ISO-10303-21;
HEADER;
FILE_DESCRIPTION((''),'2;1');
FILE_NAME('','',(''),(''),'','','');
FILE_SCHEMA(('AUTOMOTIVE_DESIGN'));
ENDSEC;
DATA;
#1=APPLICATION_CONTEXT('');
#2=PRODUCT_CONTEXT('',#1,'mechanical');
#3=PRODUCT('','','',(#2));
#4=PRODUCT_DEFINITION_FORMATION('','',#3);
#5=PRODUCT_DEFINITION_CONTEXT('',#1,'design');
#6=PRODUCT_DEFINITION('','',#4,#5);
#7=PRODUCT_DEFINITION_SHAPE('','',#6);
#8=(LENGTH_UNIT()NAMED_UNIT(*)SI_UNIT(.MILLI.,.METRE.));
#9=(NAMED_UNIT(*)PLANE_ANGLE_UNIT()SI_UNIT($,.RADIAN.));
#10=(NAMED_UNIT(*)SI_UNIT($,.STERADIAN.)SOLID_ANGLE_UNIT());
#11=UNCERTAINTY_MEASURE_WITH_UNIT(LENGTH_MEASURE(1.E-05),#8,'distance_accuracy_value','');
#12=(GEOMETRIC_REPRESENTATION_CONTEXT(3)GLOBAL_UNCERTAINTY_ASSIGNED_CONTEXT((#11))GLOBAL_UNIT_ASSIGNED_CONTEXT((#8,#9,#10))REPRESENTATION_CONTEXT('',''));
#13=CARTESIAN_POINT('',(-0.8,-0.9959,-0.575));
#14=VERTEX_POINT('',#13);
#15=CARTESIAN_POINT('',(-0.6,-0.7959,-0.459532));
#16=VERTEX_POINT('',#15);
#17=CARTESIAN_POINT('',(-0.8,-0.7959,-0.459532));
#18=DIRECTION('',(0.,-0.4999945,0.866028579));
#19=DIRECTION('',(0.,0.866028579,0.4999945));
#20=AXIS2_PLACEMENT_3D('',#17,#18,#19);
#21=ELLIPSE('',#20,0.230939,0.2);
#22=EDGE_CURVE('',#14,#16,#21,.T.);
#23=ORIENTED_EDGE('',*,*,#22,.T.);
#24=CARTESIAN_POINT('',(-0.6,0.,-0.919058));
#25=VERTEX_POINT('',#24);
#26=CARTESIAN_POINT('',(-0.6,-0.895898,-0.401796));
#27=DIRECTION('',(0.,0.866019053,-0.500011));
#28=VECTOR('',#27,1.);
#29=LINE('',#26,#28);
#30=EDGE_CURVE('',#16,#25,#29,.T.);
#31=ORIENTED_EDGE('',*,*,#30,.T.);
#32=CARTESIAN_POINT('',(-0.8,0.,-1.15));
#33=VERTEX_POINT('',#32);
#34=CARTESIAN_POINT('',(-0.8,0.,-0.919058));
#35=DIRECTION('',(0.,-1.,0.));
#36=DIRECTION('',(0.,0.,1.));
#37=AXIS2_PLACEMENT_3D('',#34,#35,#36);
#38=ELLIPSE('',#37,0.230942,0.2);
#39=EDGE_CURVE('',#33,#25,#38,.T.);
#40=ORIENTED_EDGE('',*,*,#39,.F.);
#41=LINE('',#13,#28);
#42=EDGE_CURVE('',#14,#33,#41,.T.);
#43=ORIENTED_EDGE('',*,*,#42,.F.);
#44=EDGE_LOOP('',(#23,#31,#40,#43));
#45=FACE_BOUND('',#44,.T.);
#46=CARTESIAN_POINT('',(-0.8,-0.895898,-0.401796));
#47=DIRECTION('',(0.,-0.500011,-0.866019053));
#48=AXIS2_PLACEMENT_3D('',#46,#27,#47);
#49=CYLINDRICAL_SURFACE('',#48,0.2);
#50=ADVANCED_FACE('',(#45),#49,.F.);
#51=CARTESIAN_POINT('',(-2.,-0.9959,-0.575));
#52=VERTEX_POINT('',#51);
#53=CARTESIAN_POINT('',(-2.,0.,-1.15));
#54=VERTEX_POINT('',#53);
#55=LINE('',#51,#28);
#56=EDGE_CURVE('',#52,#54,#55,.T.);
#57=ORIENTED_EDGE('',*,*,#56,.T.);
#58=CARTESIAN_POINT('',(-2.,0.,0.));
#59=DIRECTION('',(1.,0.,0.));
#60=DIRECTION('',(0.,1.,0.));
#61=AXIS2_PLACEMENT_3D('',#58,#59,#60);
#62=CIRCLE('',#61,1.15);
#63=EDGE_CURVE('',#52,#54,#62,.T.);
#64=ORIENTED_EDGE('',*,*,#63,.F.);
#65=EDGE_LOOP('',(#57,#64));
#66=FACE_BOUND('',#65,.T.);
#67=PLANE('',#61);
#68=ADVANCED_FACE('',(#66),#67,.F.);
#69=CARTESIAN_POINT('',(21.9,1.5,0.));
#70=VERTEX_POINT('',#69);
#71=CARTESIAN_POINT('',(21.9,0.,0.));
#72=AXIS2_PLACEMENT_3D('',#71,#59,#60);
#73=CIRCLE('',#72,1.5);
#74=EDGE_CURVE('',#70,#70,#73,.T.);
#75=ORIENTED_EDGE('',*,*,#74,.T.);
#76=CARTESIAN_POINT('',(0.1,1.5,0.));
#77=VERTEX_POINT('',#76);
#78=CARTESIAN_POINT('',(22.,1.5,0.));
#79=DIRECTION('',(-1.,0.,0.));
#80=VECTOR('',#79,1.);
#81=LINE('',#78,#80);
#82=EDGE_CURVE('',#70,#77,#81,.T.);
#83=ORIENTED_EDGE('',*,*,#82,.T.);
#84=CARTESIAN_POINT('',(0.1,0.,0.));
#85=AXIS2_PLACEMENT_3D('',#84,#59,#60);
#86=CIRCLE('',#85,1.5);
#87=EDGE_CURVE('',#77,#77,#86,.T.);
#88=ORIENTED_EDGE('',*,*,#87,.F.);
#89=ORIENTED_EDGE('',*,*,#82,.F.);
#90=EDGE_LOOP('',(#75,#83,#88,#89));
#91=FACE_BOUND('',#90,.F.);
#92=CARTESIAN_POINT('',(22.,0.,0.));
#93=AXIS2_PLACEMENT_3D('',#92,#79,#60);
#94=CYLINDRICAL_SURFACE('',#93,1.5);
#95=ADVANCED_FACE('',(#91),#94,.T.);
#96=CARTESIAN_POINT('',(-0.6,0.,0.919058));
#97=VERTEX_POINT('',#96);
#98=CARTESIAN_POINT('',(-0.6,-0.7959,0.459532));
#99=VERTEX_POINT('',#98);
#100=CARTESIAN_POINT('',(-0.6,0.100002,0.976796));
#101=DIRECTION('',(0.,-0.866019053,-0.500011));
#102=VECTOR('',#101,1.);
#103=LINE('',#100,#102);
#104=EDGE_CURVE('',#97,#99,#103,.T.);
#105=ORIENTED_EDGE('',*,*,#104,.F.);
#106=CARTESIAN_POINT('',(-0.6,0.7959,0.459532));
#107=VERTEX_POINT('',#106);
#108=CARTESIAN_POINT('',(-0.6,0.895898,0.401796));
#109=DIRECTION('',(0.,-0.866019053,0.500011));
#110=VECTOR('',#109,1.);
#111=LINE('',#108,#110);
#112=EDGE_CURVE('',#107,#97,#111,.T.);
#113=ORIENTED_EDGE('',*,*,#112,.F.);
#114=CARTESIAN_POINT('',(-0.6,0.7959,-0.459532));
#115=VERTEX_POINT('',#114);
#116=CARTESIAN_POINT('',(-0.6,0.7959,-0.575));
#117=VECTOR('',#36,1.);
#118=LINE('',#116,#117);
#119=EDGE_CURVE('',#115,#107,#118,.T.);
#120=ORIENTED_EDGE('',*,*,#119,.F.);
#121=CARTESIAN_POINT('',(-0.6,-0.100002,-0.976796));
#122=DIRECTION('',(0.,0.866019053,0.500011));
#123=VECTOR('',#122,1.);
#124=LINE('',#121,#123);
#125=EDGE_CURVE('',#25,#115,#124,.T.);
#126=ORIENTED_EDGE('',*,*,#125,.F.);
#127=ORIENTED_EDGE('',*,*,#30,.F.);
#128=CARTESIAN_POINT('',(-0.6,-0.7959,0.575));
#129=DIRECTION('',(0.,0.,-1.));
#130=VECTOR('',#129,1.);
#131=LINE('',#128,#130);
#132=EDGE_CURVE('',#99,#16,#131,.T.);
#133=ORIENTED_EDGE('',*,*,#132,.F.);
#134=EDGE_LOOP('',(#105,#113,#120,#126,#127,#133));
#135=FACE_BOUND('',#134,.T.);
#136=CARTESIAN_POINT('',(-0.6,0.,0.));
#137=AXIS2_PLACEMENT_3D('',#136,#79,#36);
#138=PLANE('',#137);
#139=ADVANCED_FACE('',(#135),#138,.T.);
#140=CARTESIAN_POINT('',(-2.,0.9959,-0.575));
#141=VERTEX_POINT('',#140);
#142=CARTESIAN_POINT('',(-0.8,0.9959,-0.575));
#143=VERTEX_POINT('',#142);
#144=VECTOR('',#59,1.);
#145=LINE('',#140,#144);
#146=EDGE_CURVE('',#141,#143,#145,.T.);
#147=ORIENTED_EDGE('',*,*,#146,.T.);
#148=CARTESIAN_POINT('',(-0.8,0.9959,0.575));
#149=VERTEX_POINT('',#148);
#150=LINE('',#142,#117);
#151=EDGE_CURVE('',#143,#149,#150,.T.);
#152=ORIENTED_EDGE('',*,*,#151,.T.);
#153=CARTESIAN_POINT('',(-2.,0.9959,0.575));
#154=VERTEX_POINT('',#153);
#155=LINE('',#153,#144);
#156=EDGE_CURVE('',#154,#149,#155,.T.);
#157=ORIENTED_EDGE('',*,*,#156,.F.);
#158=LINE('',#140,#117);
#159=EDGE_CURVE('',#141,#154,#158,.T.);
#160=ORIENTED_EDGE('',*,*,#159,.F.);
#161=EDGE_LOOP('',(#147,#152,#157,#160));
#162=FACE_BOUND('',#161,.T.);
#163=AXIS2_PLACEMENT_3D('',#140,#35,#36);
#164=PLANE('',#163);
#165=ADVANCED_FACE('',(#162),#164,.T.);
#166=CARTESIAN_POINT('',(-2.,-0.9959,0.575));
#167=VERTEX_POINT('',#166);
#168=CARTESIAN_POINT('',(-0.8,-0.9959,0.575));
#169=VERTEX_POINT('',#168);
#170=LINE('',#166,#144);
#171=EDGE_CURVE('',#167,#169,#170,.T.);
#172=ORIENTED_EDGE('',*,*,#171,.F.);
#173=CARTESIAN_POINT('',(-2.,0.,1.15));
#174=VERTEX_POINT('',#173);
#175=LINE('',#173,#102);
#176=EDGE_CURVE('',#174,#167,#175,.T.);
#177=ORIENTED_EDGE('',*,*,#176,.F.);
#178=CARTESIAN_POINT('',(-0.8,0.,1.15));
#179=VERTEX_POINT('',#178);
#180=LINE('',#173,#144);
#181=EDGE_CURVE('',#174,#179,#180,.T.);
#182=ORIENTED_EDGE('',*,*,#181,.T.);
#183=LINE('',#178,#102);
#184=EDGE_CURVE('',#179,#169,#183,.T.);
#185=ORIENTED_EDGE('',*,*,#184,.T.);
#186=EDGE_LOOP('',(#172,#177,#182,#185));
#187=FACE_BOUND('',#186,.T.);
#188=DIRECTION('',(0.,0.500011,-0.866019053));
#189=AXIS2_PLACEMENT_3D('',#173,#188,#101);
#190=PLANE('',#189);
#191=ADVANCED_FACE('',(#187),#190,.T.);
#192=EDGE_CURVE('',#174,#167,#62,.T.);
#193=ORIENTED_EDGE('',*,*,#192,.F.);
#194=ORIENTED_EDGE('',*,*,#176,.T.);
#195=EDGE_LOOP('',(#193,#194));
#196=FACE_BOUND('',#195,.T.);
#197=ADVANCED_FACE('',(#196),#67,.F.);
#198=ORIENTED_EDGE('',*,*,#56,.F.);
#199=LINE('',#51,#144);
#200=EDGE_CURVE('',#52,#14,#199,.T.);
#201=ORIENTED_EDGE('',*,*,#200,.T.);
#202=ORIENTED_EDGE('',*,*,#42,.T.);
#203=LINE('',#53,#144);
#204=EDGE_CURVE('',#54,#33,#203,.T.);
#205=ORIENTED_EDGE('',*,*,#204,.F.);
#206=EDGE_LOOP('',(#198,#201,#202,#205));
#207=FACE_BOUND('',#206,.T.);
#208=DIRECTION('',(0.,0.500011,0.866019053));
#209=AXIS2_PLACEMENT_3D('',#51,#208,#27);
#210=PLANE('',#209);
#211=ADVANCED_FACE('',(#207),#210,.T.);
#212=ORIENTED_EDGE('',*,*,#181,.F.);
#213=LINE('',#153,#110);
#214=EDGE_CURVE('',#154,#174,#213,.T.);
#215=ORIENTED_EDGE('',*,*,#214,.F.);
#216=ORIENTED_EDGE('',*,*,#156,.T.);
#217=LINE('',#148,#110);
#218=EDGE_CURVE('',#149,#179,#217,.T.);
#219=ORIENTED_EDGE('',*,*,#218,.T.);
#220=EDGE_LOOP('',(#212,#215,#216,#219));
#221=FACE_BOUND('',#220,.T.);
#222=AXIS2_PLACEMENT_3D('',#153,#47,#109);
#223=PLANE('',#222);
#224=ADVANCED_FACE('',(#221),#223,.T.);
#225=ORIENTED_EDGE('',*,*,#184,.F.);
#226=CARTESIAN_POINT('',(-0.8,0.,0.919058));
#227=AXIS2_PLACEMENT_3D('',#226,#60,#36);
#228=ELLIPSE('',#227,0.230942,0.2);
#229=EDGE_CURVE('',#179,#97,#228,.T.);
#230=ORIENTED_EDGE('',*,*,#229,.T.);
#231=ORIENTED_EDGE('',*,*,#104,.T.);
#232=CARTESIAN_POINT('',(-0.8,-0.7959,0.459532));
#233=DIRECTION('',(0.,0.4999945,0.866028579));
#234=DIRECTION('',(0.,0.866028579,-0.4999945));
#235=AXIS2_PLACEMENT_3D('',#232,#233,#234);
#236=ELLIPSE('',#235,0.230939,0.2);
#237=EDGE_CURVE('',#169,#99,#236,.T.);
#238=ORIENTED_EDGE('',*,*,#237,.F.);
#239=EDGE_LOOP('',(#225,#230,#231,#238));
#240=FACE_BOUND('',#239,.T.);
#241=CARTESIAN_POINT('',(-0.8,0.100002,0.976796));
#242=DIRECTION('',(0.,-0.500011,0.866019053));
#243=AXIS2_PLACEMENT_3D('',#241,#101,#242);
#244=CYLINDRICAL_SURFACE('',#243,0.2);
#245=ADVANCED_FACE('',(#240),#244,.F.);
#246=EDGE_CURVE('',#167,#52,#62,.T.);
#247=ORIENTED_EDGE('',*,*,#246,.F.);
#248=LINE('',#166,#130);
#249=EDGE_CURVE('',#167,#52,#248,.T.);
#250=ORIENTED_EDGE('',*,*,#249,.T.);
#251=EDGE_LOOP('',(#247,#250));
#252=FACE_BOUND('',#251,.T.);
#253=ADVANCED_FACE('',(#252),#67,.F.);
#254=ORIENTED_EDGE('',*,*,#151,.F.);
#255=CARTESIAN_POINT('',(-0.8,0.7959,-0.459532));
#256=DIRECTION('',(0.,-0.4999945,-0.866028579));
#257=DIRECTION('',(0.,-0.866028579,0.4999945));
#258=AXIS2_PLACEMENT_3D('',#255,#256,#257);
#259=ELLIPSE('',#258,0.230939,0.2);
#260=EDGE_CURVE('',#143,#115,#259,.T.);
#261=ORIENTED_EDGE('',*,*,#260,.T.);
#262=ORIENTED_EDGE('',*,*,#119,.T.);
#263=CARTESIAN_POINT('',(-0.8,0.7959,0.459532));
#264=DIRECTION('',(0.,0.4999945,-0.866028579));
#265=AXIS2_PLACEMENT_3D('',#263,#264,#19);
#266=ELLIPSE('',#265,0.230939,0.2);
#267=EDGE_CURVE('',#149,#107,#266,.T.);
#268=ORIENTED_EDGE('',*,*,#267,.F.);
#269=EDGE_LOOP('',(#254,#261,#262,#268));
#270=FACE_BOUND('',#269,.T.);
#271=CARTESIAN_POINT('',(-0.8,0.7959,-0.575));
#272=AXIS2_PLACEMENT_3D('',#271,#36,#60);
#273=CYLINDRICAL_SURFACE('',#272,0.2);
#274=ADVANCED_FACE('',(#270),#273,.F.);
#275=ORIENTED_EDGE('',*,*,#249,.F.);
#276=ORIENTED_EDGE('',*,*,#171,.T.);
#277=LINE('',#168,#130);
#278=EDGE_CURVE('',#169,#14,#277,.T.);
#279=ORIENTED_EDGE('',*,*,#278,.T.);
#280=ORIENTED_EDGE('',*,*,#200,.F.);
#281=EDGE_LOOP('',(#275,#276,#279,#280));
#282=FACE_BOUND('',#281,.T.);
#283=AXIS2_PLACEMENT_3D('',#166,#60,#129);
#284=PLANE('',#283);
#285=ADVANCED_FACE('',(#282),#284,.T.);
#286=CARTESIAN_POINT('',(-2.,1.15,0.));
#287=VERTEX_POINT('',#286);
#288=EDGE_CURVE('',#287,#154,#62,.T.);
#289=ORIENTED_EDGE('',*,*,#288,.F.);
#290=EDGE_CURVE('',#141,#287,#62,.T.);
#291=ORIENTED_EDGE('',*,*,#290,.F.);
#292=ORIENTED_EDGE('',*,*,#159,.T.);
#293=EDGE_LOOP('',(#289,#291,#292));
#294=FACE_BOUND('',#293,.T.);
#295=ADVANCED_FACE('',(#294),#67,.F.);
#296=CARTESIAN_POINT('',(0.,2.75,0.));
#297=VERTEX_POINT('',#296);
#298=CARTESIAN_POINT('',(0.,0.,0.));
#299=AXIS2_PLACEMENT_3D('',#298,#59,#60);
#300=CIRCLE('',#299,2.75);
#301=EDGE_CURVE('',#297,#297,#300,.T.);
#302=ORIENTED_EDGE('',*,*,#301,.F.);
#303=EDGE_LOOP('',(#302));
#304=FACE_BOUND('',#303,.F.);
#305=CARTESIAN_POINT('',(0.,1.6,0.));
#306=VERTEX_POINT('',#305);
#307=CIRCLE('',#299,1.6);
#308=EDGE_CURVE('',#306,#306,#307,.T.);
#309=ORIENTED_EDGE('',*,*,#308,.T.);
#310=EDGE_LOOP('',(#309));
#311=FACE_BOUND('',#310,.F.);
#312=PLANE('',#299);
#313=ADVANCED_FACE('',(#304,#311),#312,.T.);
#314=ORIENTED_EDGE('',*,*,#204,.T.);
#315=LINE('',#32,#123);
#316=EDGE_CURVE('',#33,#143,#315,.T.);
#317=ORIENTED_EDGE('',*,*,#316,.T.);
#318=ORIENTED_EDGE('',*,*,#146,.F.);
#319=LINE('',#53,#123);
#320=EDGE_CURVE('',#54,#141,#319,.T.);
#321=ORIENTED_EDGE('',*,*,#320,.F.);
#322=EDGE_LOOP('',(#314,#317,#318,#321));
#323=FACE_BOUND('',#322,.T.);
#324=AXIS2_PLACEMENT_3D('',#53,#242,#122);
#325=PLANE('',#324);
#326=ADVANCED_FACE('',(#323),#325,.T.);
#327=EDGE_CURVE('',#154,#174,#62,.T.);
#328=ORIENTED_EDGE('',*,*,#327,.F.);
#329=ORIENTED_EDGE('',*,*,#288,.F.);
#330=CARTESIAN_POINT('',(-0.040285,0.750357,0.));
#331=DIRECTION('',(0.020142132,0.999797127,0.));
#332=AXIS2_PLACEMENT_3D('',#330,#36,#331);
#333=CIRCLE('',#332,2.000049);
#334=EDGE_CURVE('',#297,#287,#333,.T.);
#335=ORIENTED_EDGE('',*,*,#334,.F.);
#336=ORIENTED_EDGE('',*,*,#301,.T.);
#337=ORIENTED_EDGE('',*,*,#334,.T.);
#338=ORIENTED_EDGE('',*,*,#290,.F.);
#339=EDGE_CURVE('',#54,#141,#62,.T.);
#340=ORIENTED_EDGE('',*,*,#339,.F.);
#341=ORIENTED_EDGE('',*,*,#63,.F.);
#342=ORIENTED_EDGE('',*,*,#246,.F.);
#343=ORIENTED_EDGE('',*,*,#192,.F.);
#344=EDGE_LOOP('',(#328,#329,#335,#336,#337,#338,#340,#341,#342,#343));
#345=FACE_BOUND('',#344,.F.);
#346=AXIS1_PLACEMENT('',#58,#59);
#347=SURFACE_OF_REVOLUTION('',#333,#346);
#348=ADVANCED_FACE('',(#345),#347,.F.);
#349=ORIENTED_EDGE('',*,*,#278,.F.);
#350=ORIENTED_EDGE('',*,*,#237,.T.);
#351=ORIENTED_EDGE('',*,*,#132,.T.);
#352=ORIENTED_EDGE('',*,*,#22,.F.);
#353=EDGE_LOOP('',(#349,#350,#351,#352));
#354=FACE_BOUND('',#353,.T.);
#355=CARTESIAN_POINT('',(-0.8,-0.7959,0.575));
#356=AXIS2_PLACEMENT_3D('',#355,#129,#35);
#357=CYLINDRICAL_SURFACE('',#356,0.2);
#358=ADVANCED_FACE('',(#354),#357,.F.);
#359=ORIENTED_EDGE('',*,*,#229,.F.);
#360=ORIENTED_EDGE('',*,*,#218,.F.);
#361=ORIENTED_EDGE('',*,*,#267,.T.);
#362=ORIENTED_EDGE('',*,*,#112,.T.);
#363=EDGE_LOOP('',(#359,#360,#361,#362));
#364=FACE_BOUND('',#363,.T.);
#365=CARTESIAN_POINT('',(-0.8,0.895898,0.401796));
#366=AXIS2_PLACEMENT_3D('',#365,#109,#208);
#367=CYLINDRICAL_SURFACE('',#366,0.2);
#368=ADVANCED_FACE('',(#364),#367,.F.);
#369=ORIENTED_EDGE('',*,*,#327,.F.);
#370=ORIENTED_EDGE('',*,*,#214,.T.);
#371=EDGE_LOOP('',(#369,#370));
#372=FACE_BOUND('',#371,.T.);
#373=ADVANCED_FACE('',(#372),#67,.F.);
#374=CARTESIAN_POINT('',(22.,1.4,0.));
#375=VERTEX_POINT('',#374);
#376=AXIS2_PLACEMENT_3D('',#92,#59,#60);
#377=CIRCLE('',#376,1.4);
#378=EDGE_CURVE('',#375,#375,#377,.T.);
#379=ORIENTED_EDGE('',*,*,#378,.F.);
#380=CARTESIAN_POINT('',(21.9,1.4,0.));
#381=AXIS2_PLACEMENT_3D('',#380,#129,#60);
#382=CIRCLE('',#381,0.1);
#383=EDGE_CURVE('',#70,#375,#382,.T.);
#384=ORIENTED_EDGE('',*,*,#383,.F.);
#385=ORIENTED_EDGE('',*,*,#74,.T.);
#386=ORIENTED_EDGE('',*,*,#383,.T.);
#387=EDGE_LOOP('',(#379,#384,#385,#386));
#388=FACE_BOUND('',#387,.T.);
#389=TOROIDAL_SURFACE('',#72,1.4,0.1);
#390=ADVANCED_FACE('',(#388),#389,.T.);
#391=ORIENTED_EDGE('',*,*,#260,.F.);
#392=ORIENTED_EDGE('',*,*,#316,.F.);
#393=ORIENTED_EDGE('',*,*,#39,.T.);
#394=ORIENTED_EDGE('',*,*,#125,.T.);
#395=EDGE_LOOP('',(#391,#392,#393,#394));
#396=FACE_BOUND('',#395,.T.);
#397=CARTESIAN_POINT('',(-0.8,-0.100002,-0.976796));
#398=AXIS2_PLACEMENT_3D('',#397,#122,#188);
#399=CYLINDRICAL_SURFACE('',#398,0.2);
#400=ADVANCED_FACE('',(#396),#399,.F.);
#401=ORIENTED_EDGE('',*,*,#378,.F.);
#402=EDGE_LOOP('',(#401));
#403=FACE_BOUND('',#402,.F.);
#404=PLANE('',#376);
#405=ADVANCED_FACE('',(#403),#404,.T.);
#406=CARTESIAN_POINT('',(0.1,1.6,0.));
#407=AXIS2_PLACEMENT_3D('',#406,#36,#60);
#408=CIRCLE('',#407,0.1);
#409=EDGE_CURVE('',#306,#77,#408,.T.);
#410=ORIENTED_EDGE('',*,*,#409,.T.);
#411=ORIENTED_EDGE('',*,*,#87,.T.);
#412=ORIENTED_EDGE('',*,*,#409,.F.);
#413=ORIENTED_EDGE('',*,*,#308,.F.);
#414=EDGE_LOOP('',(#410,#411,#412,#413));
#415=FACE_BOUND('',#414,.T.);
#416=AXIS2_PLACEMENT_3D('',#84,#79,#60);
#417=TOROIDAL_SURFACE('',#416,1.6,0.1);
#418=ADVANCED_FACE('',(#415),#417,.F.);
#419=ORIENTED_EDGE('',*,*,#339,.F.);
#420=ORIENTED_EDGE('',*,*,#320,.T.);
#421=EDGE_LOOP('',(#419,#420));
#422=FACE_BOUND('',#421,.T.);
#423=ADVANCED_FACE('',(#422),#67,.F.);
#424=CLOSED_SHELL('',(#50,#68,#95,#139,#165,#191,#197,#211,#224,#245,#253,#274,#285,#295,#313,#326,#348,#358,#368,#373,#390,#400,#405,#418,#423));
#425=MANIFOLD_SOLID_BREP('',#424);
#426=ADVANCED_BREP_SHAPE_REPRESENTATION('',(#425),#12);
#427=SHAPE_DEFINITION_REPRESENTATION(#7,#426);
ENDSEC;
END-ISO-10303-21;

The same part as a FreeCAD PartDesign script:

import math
import FreeCAD as App
import Part
import Sketcher
Q = App.Units.Quantity


def edges_at(feature, points):
    """Names of the edges that pass closest to the given points."""
    edges = feature.Shape.Edges
    near = lambda p: min(range(len(edges)), key=lambda i: edges[i].distToShape(Part.Vertex(*p))[0])
    return sorted({f"Edge{near(p) + 1}" for p in points})


def add_polygon(sketch, points):
    """Adds a closed chain of lines whose ends are joined by coincident constraints."""
    first, n = sketch.GeometryCount, len(points)
    for a, b in zip(points, points[1:] + points[:1]):
        sketch.addGeometry(Part.LineSegment(App.Vector(*a, 0), App.Vector(*b, 0)), False)
    for i in range(n):
        sketch.addConstraint(Sketcher.Constraint("Coincident", first + i, 2, first + (i + 1) % n, 1))

doc = App.newDocument("Part")
body = doc.addObject("PartDesign::Body", "Body")

# Sketch on XY plane
sketch1 = body.newObject("Sketcher::SketchObject", "Sketch")
sketch1.AttachmentSupport = (doc.getObject("XY_Plane"), [""])
sketch1.MapMode = "FlatFace"
sketch1.addGeometry([
    Part.LineSegment(App.Vector(22, 1.5, 0), App.Vector(0, 1.5, 0)),  # 0
    Part.LineSegment(App.Vector(0, 1.5, 0), App.Vector(0, 2.75, 0)),  # 1
    Part.ArcOfCircle(Part.Circle(App.Vector(-0.0403, 0.7504, 0), App.Vector(0, 0, 1), 2.000006), math.radians(88.845415), math.radians(168.474888)),  # 2
    Part.LineSegment(App.Vector(-2, 1.15, 0), App.Vector(-2, 0, 0)),  # 3
    Part.LineSegment(App.Vector(-2, 0, 0), App.Vector(22, 0, 0)),  # 4
    Part.LineSegment(App.Vector(22, 0, 0), App.Vector(22, 1.5, 0)),  # 5
], False)
sketch1.addConstraint([
    Sketcher.Constraint("Coincident", 0, 2, 1, 1),
    Sketcher.Constraint("Coincident", 1, 2, 2, 1),
    Sketcher.Constraint("Coincident", 2, 2, 3, 1),
    Sketcher.Constraint("Coincident", 3, 2, 4, 1),
    Sketcher.Constraint("Coincident", 4, 2, 5, 1),
    Sketcher.Constraint("Coincident", 5, 2, 0, 1),
    Sketcher.Constraint("Horizontal", 0),
    Sketcher.Constraint("Vertical", 1),
    Sketcher.Constraint("Vertical", 3),
    Sketcher.Constraint("Horizontal", 4),
    Sketcher.Constraint("Vertical", 5),
    Sketcher.Constraint("PointOnObject", 0, 2, -2),
    Sketcher.Constraint("PointOnObject", 3, 2, -1),
    Sketcher.Constraint("Radius", 2, Q("2 mm")),
    Sketcher.Constraint("DistanceX", 0, 2, 0, 1, Q("22 mm")),
    Sketcher.Constraint("DistanceY", 5, 1, 5, 2, Q("1.5 mm")),
    Sketcher.Constraint("DistanceX", 2, 2, -1, 1, Q("2 mm")),
    Sketcher.Constraint("DistanceY", 3, 2, 3, 1, Q("1.15 mm")),
    Sketcher.Constraint("DistanceY", -1, 1, 1, 2, Q("2.75 mm")),
])
revolution = body.newObject("PartDesign::Revolution", "Revolution")
revolution.Profile = sketch1
revolution.ReferenceAxis = (sketch1, ["H_Axis"])
revolution.Angle = 360

# Sketch on YZ plane
sketch2 = body.newObject("Sketcher::SketchObject", "Sketch001")
sketch2.AttachmentSupport = (doc.getObject("YZ_Plane"), [""])
sketch2.MapMode = "FlatFace"
sketch2.AttachmentOffset = App.Placement(App.Vector(0, 0, -2), App.Rotation())
add_polygon(sketch2, [(-0.9959, 0.575), (0, 1.15), (0.9959, 0.575), (0.9959, -0.575), (0, -1.15), (-0.9959, -0.575)])  # lines 0-5
sketch2.addConstraint([
    Sketcher.Constraint("Vertical", 2),
    Sketcher.Constraint("Vertical", 5),
    Sketcher.Constraint("Symmetric", 0, 2, 3, 2, -1, 1),
    Sketcher.Constraint("Symmetric", 1, 2, 4, 2, -1, 1),
    Sketcher.Constraint("PointOnObject", 0, 2, -2),
    Sketcher.Constraint("Parallel", 0, 3),
    Sketcher.Constraint("Horizontal", 2, 2, 4, 2),
    Sketcher.Constraint("DistanceY", 2, 2, 2, 1, Q("1.15 mm")),
    Sketcher.Constraint("Distance", 0, Q("1.15 mm")),
    Sketcher.Constraint("DistanceY", -1, 1, 0, 2, Q("1.15 mm")),
])
pocket1 = body.newObject("PartDesign::Pocket", "Pocket")
pocket1.Profile = sketch2
pocket1.Length = 1.4
pocket1.Reversed = True
doc.recompute()

fillet = body.newObject("PartDesign::Fillet", "Fillet")
fillet.Base = (pocket1, edges_at(pocket1, [
    (-0.6, 0.996, 0),
    (-0.6, 0.498, 0.863),
    (-0.6, 0.498, -0.863),
    (-0.6, -0.498, -0.863),
    (-0.6, -0.996, 0),
    (-0.6, -0.498, 0.863),
]))
fillet.Radius = 0.2
doc.recompute()

fillet2 = body.newObject("PartDesign::Fillet", "Fillet001")
fillet2.Base = (fillet, edges_at(fillet, [(0, -1.5, 0)]))
fillet2.Radius = 0.1
doc.recompute()

fillet3 = body.newObject("PartDesign::Fillet", "Fillet002")
fillet3.Base = (fillet2, edges_at(fillet2, [(22, -1.5, 0)]))
fillet3.Radius = 0.1

doc.recompute()
